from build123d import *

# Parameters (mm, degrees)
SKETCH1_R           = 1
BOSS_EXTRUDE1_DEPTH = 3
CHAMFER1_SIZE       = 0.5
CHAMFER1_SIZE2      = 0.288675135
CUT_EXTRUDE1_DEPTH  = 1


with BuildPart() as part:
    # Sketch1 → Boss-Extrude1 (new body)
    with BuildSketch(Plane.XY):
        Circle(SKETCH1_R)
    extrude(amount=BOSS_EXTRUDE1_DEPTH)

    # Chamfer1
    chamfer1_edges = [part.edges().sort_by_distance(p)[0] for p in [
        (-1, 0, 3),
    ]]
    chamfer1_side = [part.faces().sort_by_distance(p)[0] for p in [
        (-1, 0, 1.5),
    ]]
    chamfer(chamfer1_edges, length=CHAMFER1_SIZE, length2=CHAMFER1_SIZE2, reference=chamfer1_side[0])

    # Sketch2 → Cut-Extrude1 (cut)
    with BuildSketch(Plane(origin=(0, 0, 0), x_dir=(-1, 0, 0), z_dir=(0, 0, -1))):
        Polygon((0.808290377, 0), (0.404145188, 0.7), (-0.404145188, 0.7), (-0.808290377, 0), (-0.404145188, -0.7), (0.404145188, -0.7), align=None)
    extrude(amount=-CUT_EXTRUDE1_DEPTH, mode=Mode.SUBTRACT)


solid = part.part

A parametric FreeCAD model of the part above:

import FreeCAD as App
import Part
import Sketcher
from FreeCAD import Vector
Q = App.Units.Quantity


def edges_at(feature, points):
    """Names of the edges that pass closest to the given points."""
    edges = feature.Shape.Edges
    near = lambda p: min(range(len(edges)), key=lambda i: edges[i].distToShape(Part.Vertex(*p))[0])
    return sorted({f"Edge{near(p) + 1}" for p in points})

doc = App.newDocument("Part")
body = doc.addObject("PartDesign::Body", "Body")

# Sketch on XY plane
sketch1 = doc.addObject("Sketcher::SketchObject", "Sketch")
body.addObject(sketch1)
sketch1.AttachmentSupport = (doc.XY_Plane, [""])
sketch1.MapMode = "FlatFace"
sketch1.addGeometry(Part.Circle(Vector(0, 0, 0), Vector(0, 0, 1), 1), False)
sketch1.addConstraint([
    Sketcher.Constraint("Coincident", 0, 3, -1, 1),
    Sketcher.Constraint("Diameter", 0, 2.0),
])
pad1 = doc.addObject("PartDesign::Pad", "Pad")
body.addObject(pad1)
pad1.Profile = sketch1
pad1.Length = 3
doc.recompute()

chamfer = doc.addObject("PartDesign::Chamfer", "Chamfer")
body.addObject(chamfer)
chamfer.Base = (pad1, edges_at(pad1, [(-1, 0, 3)]))
chamfer.ChamferType = "Two distances"
chamfer.Size = 0.5
chamfer.Size2 = 0.288675

# Sketch on XY plane
sketch2 = doc.addObject("Sketcher::SketchObject", "Sketch001")
body.addObject(sketch2)
sketch2.AttachmentSupport = (doc.XY_Plane, [""])
sketch2.MapMode = "FlatFace"
sketch2.addGeometry([
    Part.LineSegment(Vector(-0.80829, 0, 0), Vector(-0.404145, 0.7, 0)),  # 0
    Part.LineSegment(Vector(-0.404145, 0.7, 0), Vector(0.404145, 0.7, 0)),  # 1
    Part.LineSegment(Vector(0.404145, 0.7, 0), Vector(0.80829, 0, 0)),  # 2
    Part.LineSegment(Vector(0.80829, 0, 0), Vector(0.404145, -0.7, 0)),  # 3
    Part.LineSegment(Vector(0.404145, -0.7, 0), Vector(-0.404145, -0.7, 0)),  # 4
    Part.LineSegment(Vector(-0.404145, -0.7, 0), Vector(-0.80829, 0, 0)),  # 5
], False)
sketch2.addConstraint([
    Sketcher.Constraint("Coincident", 0, 2, 1, 1),
    Sketcher.Constraint("Coincident", 1, 2, 2, 1),
    Sketcher.Constraint("Coincident", 2, 2, 3, 1),
    Sketcher.Constraint("Coincident", 3, 2, 4, 1),
    Sketcher.Constraint("Coincident", 4, 2, 5, 1),
    Sketcher.Constraint("Coincident", 5, 2, 0, 1),
    Sketcher.Constraint("Horizontal", 1),
    Sketcher.Constraint("Horizontal", 4),
    Sketcher.Constraint("Symmetric", 0, 2, 3, 2, -1, 1),
    Sketcher.Constraint("Symmetric", 2, 2, 5, 2, -1, 1),
    Sketcher.Constraint("PointOnObject", 2, 2, -1),
    Sketcher.Constraint("Parallel", 2, 5),
    Sketcher.Constraint("Vertical", 1, 2, 3, 2),
    Sketcher.Constraint("Angle", 0, Q("60 deg")),
    Sketcher.Constraint("DistanceY", -1, 1, 0, 2, 0.7),
    Sketcher.Constraint("DistanceX", 1, 1, 1, 2, 0.80829),
])
pocket1 = doc.addObject("PartDesign::Pocket", "Pocket")
body.addObject(pocket1)
pocket1.Profile = sketch2
pocket1.Length = 1
pocket1.Reversed = True

doc.recompute()
